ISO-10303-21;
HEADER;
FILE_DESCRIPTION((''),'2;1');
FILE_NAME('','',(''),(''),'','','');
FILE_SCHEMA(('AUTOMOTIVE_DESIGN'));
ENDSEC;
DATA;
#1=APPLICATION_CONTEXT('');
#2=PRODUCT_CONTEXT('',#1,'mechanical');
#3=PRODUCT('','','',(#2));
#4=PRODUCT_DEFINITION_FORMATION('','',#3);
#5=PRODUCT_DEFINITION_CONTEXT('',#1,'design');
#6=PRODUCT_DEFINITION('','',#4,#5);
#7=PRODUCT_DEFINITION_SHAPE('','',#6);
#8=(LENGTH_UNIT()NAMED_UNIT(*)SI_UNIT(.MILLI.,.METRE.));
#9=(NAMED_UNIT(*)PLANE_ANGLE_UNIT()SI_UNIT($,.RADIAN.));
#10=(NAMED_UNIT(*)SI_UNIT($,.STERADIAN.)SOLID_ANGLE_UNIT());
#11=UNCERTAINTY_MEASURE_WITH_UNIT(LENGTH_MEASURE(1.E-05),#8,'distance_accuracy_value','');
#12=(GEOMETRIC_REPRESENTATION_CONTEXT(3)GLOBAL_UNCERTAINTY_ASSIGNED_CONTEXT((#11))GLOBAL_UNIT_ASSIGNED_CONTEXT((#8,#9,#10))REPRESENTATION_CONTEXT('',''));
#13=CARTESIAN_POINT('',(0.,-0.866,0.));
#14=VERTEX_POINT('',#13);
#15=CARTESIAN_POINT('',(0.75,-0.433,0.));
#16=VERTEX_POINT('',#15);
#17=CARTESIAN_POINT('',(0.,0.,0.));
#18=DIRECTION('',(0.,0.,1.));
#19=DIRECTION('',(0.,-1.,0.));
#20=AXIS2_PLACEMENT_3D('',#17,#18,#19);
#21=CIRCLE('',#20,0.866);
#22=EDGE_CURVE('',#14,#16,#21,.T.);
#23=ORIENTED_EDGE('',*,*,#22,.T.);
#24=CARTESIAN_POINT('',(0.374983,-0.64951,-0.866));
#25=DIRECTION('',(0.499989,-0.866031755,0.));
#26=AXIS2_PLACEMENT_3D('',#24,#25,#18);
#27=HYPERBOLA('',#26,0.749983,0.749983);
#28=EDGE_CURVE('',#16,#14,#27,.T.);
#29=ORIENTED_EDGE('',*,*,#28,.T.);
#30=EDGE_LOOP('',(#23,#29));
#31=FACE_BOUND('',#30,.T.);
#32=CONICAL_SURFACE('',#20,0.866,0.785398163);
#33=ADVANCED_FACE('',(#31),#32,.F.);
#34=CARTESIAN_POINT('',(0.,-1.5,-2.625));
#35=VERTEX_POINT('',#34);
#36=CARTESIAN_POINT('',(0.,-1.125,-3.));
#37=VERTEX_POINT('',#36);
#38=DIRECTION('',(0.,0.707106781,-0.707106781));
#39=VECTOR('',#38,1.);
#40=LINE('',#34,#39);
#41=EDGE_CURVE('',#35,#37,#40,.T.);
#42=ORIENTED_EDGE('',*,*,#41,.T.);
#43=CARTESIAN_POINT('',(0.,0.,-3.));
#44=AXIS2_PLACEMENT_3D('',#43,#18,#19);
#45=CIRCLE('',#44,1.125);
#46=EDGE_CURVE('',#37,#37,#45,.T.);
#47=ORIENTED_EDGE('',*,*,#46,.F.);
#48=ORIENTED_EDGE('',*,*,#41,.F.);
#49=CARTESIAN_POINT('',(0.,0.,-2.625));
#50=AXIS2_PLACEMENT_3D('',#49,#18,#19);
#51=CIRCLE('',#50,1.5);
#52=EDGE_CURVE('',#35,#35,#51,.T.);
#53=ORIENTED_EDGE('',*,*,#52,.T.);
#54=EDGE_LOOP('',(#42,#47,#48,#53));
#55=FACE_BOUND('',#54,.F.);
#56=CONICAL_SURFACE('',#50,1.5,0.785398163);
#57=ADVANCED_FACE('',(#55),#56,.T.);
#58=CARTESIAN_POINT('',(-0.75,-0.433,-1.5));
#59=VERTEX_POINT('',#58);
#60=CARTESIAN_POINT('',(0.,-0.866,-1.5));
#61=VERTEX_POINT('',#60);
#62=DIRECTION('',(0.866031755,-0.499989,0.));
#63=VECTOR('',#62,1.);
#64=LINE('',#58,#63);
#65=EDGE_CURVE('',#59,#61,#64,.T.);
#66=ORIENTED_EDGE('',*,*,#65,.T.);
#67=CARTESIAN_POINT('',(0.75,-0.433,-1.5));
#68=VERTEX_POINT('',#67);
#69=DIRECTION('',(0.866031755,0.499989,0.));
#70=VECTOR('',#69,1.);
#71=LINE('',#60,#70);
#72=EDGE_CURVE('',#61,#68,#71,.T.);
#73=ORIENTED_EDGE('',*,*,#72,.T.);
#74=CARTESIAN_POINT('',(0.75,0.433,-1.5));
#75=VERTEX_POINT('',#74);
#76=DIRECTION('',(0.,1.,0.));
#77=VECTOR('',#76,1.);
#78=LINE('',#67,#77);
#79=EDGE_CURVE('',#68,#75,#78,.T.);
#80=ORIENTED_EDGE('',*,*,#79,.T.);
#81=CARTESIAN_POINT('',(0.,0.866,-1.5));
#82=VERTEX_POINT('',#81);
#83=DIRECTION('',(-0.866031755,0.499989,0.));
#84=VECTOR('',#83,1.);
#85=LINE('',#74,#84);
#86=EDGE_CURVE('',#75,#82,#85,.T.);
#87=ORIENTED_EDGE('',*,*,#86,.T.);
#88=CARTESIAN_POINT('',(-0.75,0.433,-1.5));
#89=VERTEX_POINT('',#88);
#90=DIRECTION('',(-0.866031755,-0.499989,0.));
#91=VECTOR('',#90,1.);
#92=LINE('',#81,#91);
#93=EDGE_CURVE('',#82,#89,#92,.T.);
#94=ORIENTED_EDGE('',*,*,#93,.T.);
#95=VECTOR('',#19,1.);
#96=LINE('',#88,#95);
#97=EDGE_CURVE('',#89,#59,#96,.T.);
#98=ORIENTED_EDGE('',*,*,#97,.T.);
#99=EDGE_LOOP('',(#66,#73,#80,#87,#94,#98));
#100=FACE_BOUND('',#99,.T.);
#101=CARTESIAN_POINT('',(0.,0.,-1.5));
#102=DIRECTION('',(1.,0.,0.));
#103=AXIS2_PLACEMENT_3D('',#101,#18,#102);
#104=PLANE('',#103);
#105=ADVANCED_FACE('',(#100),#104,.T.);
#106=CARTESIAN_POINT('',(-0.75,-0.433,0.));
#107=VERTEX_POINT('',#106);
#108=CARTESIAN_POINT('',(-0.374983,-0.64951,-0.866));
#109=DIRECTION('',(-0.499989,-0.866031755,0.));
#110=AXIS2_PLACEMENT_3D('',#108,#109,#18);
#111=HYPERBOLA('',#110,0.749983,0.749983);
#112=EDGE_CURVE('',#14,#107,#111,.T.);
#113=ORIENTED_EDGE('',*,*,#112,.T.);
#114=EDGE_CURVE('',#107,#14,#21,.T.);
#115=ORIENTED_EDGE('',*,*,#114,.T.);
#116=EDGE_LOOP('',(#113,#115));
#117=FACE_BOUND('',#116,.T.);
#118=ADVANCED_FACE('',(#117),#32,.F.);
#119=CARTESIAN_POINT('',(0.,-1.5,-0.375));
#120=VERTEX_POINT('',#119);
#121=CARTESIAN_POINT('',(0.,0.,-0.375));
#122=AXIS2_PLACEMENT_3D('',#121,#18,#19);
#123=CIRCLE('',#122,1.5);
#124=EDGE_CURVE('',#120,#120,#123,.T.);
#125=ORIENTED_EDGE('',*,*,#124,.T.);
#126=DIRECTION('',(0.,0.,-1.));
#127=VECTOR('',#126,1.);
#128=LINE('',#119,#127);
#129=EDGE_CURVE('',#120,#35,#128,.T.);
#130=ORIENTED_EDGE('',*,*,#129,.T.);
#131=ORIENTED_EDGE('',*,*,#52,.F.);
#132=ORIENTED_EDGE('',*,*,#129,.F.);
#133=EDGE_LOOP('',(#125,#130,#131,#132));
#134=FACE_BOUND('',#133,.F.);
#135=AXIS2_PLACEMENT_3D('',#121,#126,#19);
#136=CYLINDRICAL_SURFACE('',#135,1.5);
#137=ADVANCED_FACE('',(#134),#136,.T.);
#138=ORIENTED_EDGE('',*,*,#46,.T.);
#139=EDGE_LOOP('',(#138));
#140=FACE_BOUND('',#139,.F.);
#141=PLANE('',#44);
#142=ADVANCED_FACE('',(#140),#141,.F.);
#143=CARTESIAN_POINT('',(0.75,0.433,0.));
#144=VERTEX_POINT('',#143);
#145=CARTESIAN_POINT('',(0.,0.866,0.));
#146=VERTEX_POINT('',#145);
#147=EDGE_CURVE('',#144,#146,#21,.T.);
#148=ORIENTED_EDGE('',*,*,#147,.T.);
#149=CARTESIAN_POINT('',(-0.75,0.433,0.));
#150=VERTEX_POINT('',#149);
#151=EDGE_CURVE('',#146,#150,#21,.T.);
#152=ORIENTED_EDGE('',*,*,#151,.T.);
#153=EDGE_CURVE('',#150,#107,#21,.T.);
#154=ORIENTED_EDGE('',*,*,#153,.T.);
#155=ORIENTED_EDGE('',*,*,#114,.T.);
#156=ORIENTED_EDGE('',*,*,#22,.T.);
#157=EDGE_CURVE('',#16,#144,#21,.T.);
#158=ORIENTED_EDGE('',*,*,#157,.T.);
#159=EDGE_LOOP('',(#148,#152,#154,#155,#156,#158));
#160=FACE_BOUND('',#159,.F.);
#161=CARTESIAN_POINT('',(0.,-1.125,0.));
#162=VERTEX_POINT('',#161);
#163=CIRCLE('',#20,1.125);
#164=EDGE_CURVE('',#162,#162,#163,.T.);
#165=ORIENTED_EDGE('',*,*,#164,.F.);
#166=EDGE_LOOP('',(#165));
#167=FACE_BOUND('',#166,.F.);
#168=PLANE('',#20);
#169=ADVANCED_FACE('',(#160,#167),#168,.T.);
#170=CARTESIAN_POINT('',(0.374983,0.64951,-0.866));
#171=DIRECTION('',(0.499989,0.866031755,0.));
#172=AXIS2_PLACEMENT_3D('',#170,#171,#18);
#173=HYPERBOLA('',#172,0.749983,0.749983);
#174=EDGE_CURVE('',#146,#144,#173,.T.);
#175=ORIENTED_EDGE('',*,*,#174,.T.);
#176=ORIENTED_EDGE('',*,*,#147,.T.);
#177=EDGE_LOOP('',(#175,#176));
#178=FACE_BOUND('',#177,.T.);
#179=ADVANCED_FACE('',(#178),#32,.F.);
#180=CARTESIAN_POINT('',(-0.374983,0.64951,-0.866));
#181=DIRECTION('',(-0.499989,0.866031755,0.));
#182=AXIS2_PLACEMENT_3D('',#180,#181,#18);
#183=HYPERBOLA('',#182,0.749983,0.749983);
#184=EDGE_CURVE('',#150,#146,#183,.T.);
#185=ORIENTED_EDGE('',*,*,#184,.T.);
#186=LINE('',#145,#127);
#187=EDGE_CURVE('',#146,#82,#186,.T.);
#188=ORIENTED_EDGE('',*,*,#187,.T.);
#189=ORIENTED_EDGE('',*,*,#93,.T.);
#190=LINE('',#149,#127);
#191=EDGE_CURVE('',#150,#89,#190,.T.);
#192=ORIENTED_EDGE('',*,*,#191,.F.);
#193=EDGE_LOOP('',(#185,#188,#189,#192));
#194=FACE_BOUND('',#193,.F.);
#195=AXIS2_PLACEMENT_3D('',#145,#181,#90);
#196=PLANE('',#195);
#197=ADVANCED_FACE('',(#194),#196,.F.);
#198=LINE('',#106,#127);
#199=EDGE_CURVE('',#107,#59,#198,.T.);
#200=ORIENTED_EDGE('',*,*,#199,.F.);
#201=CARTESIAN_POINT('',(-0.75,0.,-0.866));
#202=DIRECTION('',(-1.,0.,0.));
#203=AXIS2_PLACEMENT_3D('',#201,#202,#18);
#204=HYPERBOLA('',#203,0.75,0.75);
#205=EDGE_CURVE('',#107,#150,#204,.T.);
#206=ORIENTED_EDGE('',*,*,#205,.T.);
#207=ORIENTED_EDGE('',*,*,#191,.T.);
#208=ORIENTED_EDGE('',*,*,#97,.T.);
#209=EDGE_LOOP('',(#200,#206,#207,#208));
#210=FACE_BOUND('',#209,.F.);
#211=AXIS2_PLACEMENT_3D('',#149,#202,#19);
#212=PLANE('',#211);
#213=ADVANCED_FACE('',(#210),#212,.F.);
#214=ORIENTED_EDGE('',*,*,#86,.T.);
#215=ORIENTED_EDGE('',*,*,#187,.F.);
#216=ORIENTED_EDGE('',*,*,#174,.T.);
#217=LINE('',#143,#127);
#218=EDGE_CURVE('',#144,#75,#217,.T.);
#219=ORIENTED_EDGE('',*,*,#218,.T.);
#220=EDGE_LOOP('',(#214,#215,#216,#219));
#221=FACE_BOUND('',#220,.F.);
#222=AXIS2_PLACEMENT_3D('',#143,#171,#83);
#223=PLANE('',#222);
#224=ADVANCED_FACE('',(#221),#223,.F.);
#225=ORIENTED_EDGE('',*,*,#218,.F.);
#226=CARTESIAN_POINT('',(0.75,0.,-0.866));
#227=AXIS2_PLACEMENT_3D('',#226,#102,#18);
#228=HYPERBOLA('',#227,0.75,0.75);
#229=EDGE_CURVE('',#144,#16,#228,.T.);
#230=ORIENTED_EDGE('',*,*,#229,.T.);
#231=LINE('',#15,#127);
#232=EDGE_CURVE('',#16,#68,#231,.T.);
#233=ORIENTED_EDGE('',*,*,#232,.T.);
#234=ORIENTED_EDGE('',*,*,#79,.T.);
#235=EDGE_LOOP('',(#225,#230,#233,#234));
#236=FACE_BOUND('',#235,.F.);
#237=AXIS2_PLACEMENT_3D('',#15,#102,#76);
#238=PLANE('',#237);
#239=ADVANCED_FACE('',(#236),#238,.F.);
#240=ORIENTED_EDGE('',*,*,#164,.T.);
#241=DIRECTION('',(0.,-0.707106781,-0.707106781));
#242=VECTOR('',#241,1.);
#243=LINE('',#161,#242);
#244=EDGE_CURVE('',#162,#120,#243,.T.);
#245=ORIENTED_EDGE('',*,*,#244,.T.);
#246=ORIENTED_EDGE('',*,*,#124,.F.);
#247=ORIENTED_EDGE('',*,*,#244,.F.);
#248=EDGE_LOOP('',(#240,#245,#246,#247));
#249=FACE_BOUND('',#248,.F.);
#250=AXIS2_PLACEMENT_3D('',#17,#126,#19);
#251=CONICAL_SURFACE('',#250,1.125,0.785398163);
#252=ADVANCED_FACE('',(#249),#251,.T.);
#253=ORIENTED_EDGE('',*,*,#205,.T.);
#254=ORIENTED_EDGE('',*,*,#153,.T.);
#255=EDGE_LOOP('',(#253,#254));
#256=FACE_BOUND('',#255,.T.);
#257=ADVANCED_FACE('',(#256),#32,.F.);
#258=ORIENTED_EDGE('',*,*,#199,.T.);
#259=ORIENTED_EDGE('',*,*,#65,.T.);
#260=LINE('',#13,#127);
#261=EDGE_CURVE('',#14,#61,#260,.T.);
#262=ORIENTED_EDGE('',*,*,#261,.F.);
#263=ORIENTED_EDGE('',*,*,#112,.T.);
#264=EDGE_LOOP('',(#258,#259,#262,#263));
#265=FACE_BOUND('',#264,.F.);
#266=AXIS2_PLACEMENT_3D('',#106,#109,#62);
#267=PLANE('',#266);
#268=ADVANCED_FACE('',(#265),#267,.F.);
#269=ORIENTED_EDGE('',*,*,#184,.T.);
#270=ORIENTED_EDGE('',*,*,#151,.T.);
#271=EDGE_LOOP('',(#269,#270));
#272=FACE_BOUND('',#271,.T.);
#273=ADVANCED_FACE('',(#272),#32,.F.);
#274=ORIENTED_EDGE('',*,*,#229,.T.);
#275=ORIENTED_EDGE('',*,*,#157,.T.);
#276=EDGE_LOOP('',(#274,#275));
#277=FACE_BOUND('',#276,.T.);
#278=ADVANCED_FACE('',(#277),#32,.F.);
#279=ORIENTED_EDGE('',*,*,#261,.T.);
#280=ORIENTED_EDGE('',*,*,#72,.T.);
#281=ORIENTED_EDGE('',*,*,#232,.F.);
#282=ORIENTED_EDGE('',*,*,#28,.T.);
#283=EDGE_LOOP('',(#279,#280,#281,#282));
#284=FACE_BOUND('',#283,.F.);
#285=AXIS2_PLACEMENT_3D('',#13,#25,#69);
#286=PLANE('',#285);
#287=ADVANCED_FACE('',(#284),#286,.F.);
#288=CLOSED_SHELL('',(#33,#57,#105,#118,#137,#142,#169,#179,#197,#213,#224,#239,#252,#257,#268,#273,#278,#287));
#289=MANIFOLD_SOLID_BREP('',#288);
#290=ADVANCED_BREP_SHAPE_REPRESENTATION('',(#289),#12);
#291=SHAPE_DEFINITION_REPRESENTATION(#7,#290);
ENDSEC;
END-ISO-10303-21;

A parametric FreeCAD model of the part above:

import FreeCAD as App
import Part
import Sketcher
Q = App.Units.Quantity


def add_polygon(sketch, points):
    """Adds a closed chain of lines whose ends are joined by coincident constraints."""
    first, n = sketch.GeometryCount, len(points)
    for a, b in zip(points, points[1:] + points[:1]):
        sketch.addGeometry(Part.LineSegment(App.Vector(*a, 0), App.Vector(*b, 0)), False)
    for i in range(n):
        sketch.addConstraint(Sketcher.Constraint("Coincident", first + i, 2, first + (i + 1) % n, 1))

doc = App.newDocument("Part")
body = doc.addObject("PartDesign::Body", "Body")

sketch1 = body.newObject("Sketcher::SketchObject", "Sketch")
sketch1.AttachmentSupport = (doc.getObject("YZ_Plane"), [""])
sketch1.MapMode = "FlatFace"
add_polygon(sketch1, [(-1.5, -0.38), (-1.5, -2.62), (-1.12, -3), (0, -3), (0, -0.87), (-0.87, 0), (-1.12, 0)])
sketch1.addConstraint(Sketcher.Constraint("Vertical", 0))
sketch1.addConstraint(Sketcher.Constraint("Horizontal", 2))
sketch1.addConstraint(Sketcher.Constraint("Vertical", 3))
sketch1.addConstraint(Sketcher.Constraint("Horizontal", 5))
sketch1.addConstraint(Sketcher.Constraint("PointOnObject", 2, 2, -2))
sketch1.addConstraint(Sketcher.Constraint("PointOnObject", 4, 2, -1))
sketch1.addConstraint(Sketcher.Constraint("Parallel", 1, 4))
sketch1.addConstraint(Sketcher.Constraint("Perpendicular", 4, 6))
sketch1.addConstraint(Sketcher.Constraint("Vertical", 1, 2, 5, 2))
sketch1.addConstraint(Sketcher.Constraint("Equal", 1, 6))
sketch1.addConstraint(Sketcher.Constraint("DistanceY", 1, 2, -1, 1, Q("3 mm")))
sketch1.addConstraint(Sketcher.Constraint("DistanceX", 0, 2, -1, 1, Q("1.5 mm")))
sketch1.addConstraint(Sketcher.Constraint("DistanceY", 3, 2, -1, 1, Q("0.866 mm")))
sketch1.addConstraint(Sketcher.Constraint("DistanceY", 6, 2, -1, 1, Q("0.375 mm")))
revolution = body.newObject("PartDesign::Revolution", "Revolution")
revolution.Profile = sketch1
revolution.ReferenceAxis = (sketch1, ["V_Axis"])
revolution.Angle = 360

sketch2 = body.newObject("Sketcher::SketchObject", "Sketch001")
sketch2.AttachmentSupport = (doc.getObject("XY_Plane"), [""])
sketch2.MapMode = "FlatFace"
add_polygon(sketch2, [(0.8, -0.4), (0.8, 0.4), (0, 0.9), (-0.8, 0.4), (-0.8, -0.4), (0, -0.9)])
sketch2.addConstraint(Sketcher.Constraint("Vertical", 0))
sketch2.addConstraint(Sketcher.Constraint("Vertical", 3))
sketch2.addConstraint(Sketcher.Constraint("Symmetric", 0, 2, 3, 2, -1, 1))
sketch2.addConstraint(Sketcher.Constraint("Symmetric", 1, 2, 4, 2, -1, 1))
sketch2.addConstraint(Sketcher.Constraint("PointOnObject", 1, 2, -2))
sketch2.addConstraint(Sketcher.Constraint("Parallel", 2, 5))
sketch2.addConstraint(Sketcher.Constraint("Horizontal", 0, 2, 2, 2))
sketch2.addConstraint(Sketcher.Constraint("DistanceX", -1, 1, 0, 2, Q("0.75 mm")))
sketch2.addConstraint(Sketcher.Constraint("Angle", 1, Q("150.0007 deg")))
sketch2.addConstraint(Sketcher.Constraint("DistanceY", 0, 1, 0, 2, Q("0.866 mm")))
pocket1 = body.newObject("PartDesign::Pocket", "Pocket")
pocket1.Profile = sketch2
pocket1.Length = 1.5

doc.recompute()
